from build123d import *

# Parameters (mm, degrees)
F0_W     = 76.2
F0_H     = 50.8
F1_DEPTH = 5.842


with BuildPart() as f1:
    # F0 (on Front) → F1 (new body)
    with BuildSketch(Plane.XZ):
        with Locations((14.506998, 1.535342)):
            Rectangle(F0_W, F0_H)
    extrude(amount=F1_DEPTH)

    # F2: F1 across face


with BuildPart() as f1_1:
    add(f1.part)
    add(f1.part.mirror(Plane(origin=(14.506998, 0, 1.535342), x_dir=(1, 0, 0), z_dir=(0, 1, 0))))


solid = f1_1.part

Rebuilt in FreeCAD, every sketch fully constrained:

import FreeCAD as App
import Part
import Sketcher
from FreeCAD import Vector
Q = App.Units.Quantity

doc = App.newDocument("Part")
body = doc.addObject("PartDesign::Body", "Body")

# Sketch on XZ plane
sketch1 = body.newObject("Sketcher::SketchObject", "Sketch")
sketch1.AttachmentSupport = (doc.getObject("XZ_Plane"), [""])
sketch1.MapMode = "FlatFace"
sketch1.addGeometry([
    Part.LineSegment(Vector(-23.593002, 26.935342, 0), Vector(-23.593002, -23.864658, 0)),
    Part.LineSegment(Vector(-23.593002, -23.864658, 0), Vector(52.606998, -23.864658, 0)),
    Part.LineSegment(Vector(52.606998, -23.864658, 0), Vector(52.606998, 26.935342, 0)),
    Part.LineSegment(Vector(52.606998, 26.935342, 0), Vector(-23.593002, 26.935342, 0)),
], False)
sketch1.addConstraint([
    Sketcher.Constraint("Coincident", 0, 2, 1, 1),
    Sketcher.Constraint("Coincident", 1, 2, 2, 1),
    Sketcher.Constraint("Coincident", 2, 2, 3, 1),
    Sketcher.Constraint("Coincident", 3, 2, 0, 1),
    Sketcher.Constraint("Vertical", 0),
    Sketcher.Constraint("Horizontal", 1),
    Sketcher.Constraint("Vertical", 2),
    Sketcher.Constraint("Horizontal", 3),
    Sketcher.Constraint("DistanceX", 1, 1, 1, 2, Q("3 in")),
    Sketcher.Constraint("DistanceY", 0, 2, 0, 1, Q("2 in")),
    Sketcher.Constraint("DistanceX", 0, 2, -1, 1, 23.593002),
    Sketcher.Constraint("DistanceY", -1, 1, 2, 2, 26.935342),
])
pad1 = body.newObject("PartDesign::Pad", "Pad")
pad1.Profile = sketch1
pad1.Length = Q("0.23 in")
body2 = doc.addObject("PartDesign::Body", "Body001")
doc.recompute()

body2.BaseFeature = body
doc.recompute()

mirroring = doc.addObject("Part::Mirroring", "Mirroring")
mirroring.Source = body
mirroring.Base = Vector(14.506998, 0, 1.535342)
mirroring.Normal = Vector(0, 1, 0)
body3 = doc.addObject("PartDesign::Body", "Body002")
body3.BaseFeature = mirroring
boolean = body2.newObject("PartDesign::Boolean", "Boolean")
boolean.Type = "Fuse"
boolean.addObjects([body3])
doc.recompute()
mirroring.Visibility = False

doc.recompute()
